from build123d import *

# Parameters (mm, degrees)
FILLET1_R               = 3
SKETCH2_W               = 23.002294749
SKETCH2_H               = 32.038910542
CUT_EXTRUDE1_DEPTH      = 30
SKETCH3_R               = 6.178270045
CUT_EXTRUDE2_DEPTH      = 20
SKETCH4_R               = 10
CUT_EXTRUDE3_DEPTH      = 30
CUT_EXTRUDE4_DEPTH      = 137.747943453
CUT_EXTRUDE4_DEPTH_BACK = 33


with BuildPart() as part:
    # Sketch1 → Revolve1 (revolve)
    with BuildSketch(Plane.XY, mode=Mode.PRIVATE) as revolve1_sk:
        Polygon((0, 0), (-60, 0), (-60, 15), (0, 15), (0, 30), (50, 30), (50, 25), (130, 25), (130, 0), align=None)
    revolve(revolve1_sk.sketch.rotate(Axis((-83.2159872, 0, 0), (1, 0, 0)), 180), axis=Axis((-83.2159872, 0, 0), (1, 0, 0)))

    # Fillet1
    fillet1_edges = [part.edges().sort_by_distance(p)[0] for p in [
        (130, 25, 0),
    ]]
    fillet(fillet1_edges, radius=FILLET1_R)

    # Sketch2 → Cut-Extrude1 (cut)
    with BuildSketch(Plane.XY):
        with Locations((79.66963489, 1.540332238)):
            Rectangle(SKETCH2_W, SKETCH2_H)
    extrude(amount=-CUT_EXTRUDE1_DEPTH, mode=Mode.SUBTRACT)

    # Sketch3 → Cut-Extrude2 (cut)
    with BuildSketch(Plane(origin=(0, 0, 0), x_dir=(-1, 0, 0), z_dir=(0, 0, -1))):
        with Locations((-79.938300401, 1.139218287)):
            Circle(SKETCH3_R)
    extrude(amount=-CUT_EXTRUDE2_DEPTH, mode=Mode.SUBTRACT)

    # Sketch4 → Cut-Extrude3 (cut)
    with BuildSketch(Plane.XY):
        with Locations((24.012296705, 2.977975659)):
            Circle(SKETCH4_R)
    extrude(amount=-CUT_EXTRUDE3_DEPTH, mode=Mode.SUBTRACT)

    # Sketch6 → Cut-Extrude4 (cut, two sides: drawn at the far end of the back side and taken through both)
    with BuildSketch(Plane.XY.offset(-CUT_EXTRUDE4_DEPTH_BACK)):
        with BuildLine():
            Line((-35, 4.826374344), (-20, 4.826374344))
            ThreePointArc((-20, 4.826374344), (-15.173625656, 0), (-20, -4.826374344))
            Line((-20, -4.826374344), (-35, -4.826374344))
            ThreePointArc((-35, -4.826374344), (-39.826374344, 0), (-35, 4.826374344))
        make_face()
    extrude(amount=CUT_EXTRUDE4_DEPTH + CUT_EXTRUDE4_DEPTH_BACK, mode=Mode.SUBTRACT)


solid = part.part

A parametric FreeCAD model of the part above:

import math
import FreeCAD as App
import Part
import Sketcher

V = App.Vector
Q = App.Units.Quantity


def edges_at(feature, points):
    """Names of the edges that pass closest to the given points."""
    edges = feature.Shape.Edges
    near = lambda p: min(range(len(edges)), key=lambda i: edges[i].distToShape(Part.Vertex(*p))[0])
    return sorted({f"Edge{near(p) + 1}" for p in points})

doc = App.newDocument("Part")
params = doc.addObject("Spreadsheet::Sheet", "Params")
for row, (alias, value) in enumerate([
    ("sketch1_width", "190 mm"),
    ("sketch1_width2", "80 mm"),
    ("sketch1_width3", "50 mm"),
    ("sketch1_height", "25 mm"),
    ("sketch1_height2", "5 mm"),
    ("revolution_angle", "360 deg"),
    ("fillet_radius", "3 mm"),
    ("pocket1_length", "30 mm"),
    ("pocket2_length", "20 mm"),
    ("sketch4_diameter", "20 mm"),
    ("pocket3_length", "30 mm"),
    ("sketch5_width", "15 mm"),
], start=1):
    params.set(f"A{row}", alias)
    params.set(f"B{row}", "=" + value)
    params.setAlias(f"B{row}", alias)

body = doc.addObject("PartDesign::Body", "Body")

# Sketch on XY plane
sketch1 = body.newObject("Sketcher::SketchObject", "Sketch")
sketch1.AttachmentSupport = (doc.getObject("XY_Plane"), [""])
sketch1.MapMode = "FlatFace"
sketch1.addGeometry([
    Part.LineSegment(V(-60, 0, 0), V(130, 0, 0)),  # 0
    Part.LineSegment(V(130, 0, 0), V(130, 25, 0)),  # 1
    Part.LineSegment(V(130, 25, 0), V(50, 25, 0)),  # 2
    Part.LineSegment(V(50, 25, 0), V(50, 30, 0)),  # 3
    Part.LineSegment(V(50, 30, 0), V(0, 30, 0)),  # 4
    Part.LineSegment(V(0, 30, 0), V(0, 15, 0)),  # 5
    Part.LineSegment(V(0, 15, 0), V(-60, 15, 0)),  # 6
    Part.LineSegment(V(-60, 15, 0), V(-60, 0, 0)),  # 7
], False)
sketch1.addConstraint([
    Sketcher.Constraint("Coincident", 0, 2, 1, 1),
    Sketcher.Constraint("Coincident", 1, 2, 2, 1),
    Sketcher.Constraint("Coincident", 2, 2, 3, 1),
    Sketcher.Constraint("Coincident", 3, 2, 4, 1),
    Sketcher.Constraint("Coincident", 4, 2, 5, 1),
    Sketcher.Constraint("Coincident", 5, 2, 6, 1),
    Sketcher.Constraint("Coincident", 6, 2, 7, 1),
    Sketcher.Constraint("Coincident", 7, 2, 0, 1),
    Sketcher.Constraint("Horizontal", 0),
    Sketcher.Constraint("Vertical", 1),
    Sketcher.Constraint("Horizontal", 2),
    Sketcher.Constraint("Vertical", 3),
    Sketcher.Constraint("Horizontal", 4),
    Sketcher.Constraint("Vertical", 5),
    Sketcher.Constraint("Horizontal", 6),
    Sketcher.Constraint("Vertical", 7),
    Sketcher.Constraint("PointOnObject", 0, 2, -1),
    Sketcher.Constraint("PointOnObject", 4, 2, -2),
    Sketcher.Constraint("Equal", 5, 7),
    Sketcher.Constraint("DistanceX", 0, 1, 0, 2, Q("190 mm")),
    Sketcher.Constraint("DistanceX", 2, 2, 2, 1, Q("80 mm")),
    Sketcher.Constraint("DistanceX", 4, 2, 4, 1, Q("50 mm")),
    Sketcher.Constraint("DistanceY", 1, 1, 1, 2, Q("25 mm")),
    Sketcher.Constraint("DistanceY", 3, 1, 3, 2, Q("5 mm")),
])
sketch1.setExpression("Constraints[19]", "Params.sketch1_width")
sketch1.setExpression("Constraints[20]", "Params.sketch1_width2")
sketch1.setExpression("Constraints[21]", "Params.sketch1_width3")
sketch1.setExpression("Constraints[22]", "Params.sketch1_height")
sketch1.setExpression("Constraints[23]", "Params.sketch1_height2")
revolution = body.newObject("PartDesign::Revolution", "Revolution")
revolution.Profile = sketch1
revolution.ReferenceAxis = (sketch1, ["H_Axis"])
revolution.setExpression("Angle", "Params.revolution_angle")
doc.recompute()

fillet = body.newObject("PartDesign::Fillet", "Fillet")
fillet.Base = (revolution, edges_at(revolution, [(130, 25, 0)]))
fillet.setExpression("Radius", "Params.fillet_radius")

# Sketch on XY plane
sketch2 = body.newObject("Sketcher::SketchObject", "Sketch001")
sketch2.AttachmentSupport = (doc.getObject("XY_Plane"), [""])
sketch2.MapMode = "FlatFace"
sketch2.addGeometry([
    Part.LineSegment(V(68, 18, 0), V(68, -14, 0)),
    Part.LineSegment(V(68, -14, 0), V(91, -14, 0)),
    Part.LineSegment(V(91, -14, 0), V(91, 18, 0)),
    Part.LineSegment(V(91, 18, 0), V(68, 18, 0)),
], False)
sketch2.addConstraint([
    Sketcher.Constraint("Coincident", 0, 2, 1, 1),
    Sketcher.Constraint("Coincident", 1, 2, 2, 1),
    Sketcher.Constraint("Coincident", 2, 2, 3, 1),
    Sketcher.Constraint("Coincident", 3, 2, 0, 1),
    Sketcher.Constraint("Vertical", 0),
    Sketcher.Constraint("Horizontal", 1),
    Sketcher.Constraint("Vertical", 2),
    Sketcher.Constraint("Horizontal", 3),
    Sketcher.Constraint("DistanceY", 0, 2, 0, 1, Q("32.038911 mm")),
    Sketcher.Constraint("DistanceX", 1, 1, 1, 2, Q("23.002295 mm")),
    Sketcher.Constraint("DistanceX", -1, 1, 0, 2, Q("68.168488 mm")),
    Sketcher.Constraint("DistanceY", 0, 2, -1, 1, Q("14.479123 mm")),
])
pocket1 = body.newObject("PartDesign::Pocket", "Pocket")
pocket1.Profile = sketch2
pocket1.setExpression("Length", "Params.pocket1_length")

# Sketch on XY plane
sketch3 = body.newObject("Sketcher::SketchObject", "Sketch002")
sketch3.AttachmentSupport = (doc.getObject("XY_Plane"), [""])
sketch3.MapMode = "FlatFace"
sketch3.addGeometry(Part.Circle(V(80, 1, 0), V(0, 0, 1), 6), False)
sketch3.addConstraint([
    Sketcher.Constraint("Diameter", 0, Q("12.35654 mm")),
    Sketcher.Constraint("DistanceX", -1, 1, 0, 3, Q("79.9383 mm")),
    Sketcher.Constraint("DistanceY", -1, 1, 0, 3, Q("1.139218 mm")),
])
pocket2 = body.newObject("PartDesign::Pocket", "Pocket001")
pocket2.Profile = sketch3
pocket2.setExpression("Length", "Params.pocket2_length")
pocket2.Reversed = True

# Sketch on XY plane
sketch4 = body.newObject("Sketcher::SketchObject", "Sketch003")
sketch4.AttachmentSupport = (doc.getObject("XY_Plane"), [""])
sketch4.MapMode = "FlatFace"
sketch4.addGeometry(Part.Circle(V(24, 3, 0), V(0, 0, 1), 10), False)
sketch4.addConstraint([
    Sketcher.Constraint("Diameter", 0, Q("20 mm")),
    Sketcher.Constraint("DistanceX", -1, 1, 0, 3, Q("24.012297 mm")),
    Sketcher.Constraint("DistanceY", -1, 1, 0, 3, Q("2.977976 mm")),
])
sketch4.setExpression("Constraints[0]", "Params.sketch4_diameter")
pocket3 = body.newObject("PartDesign::Pocket", "Pocket002")
pocket3.Profile = sketch4
pocket3.setExpression("Length", "Params.pocket3_length")

# Sketch on XY plane
sketch5 = body.newObject("Sketcher::SketchObject", "Sketch004")
sketch5.AttachmentSupport = (doc.getObject("XY_Plane"), [""])
sketch5.MapMode = "FlatFace"
sketch5.addGeometry([
    Part.LineSegment(V(-20, 4.8, 0), V(-35, 4.8, 0)),
    Part.ArcOfCircle(Part.Circle(V(-35, 0, 0), V(0, 0, 1), 4.8), math.radians(90), math.radians(270)),
    Part.LineSegment(V(-35, -4.8, 0), V(-20, -4.8, 0)),
    Part.ArcOfCircle(Part.Circle(V(-20, 0, 0), V(0, 0, 1), 4.8), math.radians(-90), math.radians(90)),
], False)
sketch5.addConstraint([
    Sketcher.Constraint("Tangent", 0, 2, 1, 1),
    Sketcher.Constraint("Tangent", 1, 2, 2, 1),
    Sketcher.Constraint("Tangent", 2, 2, 3, 1),
    Sketcher.Constraint("Tangent", 3, 2, 0, 1),
    Sketcher.Constraint("Horizontal", 0),
    Sketcher.Constraint("Horizontal", 2),
    Sketcher.Constraint("PointOnObject", 1, 3, -1),
    Sketcher.Constraint("DistanceX", 0, 2, 0, 1, Q("15 mm")),
    Sketcher.Constraint("DistanceX", 1, 3, -1, 1, Q("35 mm")),
    Sketcher.Constraint("Radius", 1, Q("4.826374 mm")),
])
sketch5.setExpression("Constraints[7]", "Params.sketch5_width")
pocket4 = body.newObject("PartDesign::Pocket", "Pocket003")
pocket4.Profile = sketch5
pocket4.Type = "ThroughAll"
pocket4.Midplane = True

doc.recompute()
